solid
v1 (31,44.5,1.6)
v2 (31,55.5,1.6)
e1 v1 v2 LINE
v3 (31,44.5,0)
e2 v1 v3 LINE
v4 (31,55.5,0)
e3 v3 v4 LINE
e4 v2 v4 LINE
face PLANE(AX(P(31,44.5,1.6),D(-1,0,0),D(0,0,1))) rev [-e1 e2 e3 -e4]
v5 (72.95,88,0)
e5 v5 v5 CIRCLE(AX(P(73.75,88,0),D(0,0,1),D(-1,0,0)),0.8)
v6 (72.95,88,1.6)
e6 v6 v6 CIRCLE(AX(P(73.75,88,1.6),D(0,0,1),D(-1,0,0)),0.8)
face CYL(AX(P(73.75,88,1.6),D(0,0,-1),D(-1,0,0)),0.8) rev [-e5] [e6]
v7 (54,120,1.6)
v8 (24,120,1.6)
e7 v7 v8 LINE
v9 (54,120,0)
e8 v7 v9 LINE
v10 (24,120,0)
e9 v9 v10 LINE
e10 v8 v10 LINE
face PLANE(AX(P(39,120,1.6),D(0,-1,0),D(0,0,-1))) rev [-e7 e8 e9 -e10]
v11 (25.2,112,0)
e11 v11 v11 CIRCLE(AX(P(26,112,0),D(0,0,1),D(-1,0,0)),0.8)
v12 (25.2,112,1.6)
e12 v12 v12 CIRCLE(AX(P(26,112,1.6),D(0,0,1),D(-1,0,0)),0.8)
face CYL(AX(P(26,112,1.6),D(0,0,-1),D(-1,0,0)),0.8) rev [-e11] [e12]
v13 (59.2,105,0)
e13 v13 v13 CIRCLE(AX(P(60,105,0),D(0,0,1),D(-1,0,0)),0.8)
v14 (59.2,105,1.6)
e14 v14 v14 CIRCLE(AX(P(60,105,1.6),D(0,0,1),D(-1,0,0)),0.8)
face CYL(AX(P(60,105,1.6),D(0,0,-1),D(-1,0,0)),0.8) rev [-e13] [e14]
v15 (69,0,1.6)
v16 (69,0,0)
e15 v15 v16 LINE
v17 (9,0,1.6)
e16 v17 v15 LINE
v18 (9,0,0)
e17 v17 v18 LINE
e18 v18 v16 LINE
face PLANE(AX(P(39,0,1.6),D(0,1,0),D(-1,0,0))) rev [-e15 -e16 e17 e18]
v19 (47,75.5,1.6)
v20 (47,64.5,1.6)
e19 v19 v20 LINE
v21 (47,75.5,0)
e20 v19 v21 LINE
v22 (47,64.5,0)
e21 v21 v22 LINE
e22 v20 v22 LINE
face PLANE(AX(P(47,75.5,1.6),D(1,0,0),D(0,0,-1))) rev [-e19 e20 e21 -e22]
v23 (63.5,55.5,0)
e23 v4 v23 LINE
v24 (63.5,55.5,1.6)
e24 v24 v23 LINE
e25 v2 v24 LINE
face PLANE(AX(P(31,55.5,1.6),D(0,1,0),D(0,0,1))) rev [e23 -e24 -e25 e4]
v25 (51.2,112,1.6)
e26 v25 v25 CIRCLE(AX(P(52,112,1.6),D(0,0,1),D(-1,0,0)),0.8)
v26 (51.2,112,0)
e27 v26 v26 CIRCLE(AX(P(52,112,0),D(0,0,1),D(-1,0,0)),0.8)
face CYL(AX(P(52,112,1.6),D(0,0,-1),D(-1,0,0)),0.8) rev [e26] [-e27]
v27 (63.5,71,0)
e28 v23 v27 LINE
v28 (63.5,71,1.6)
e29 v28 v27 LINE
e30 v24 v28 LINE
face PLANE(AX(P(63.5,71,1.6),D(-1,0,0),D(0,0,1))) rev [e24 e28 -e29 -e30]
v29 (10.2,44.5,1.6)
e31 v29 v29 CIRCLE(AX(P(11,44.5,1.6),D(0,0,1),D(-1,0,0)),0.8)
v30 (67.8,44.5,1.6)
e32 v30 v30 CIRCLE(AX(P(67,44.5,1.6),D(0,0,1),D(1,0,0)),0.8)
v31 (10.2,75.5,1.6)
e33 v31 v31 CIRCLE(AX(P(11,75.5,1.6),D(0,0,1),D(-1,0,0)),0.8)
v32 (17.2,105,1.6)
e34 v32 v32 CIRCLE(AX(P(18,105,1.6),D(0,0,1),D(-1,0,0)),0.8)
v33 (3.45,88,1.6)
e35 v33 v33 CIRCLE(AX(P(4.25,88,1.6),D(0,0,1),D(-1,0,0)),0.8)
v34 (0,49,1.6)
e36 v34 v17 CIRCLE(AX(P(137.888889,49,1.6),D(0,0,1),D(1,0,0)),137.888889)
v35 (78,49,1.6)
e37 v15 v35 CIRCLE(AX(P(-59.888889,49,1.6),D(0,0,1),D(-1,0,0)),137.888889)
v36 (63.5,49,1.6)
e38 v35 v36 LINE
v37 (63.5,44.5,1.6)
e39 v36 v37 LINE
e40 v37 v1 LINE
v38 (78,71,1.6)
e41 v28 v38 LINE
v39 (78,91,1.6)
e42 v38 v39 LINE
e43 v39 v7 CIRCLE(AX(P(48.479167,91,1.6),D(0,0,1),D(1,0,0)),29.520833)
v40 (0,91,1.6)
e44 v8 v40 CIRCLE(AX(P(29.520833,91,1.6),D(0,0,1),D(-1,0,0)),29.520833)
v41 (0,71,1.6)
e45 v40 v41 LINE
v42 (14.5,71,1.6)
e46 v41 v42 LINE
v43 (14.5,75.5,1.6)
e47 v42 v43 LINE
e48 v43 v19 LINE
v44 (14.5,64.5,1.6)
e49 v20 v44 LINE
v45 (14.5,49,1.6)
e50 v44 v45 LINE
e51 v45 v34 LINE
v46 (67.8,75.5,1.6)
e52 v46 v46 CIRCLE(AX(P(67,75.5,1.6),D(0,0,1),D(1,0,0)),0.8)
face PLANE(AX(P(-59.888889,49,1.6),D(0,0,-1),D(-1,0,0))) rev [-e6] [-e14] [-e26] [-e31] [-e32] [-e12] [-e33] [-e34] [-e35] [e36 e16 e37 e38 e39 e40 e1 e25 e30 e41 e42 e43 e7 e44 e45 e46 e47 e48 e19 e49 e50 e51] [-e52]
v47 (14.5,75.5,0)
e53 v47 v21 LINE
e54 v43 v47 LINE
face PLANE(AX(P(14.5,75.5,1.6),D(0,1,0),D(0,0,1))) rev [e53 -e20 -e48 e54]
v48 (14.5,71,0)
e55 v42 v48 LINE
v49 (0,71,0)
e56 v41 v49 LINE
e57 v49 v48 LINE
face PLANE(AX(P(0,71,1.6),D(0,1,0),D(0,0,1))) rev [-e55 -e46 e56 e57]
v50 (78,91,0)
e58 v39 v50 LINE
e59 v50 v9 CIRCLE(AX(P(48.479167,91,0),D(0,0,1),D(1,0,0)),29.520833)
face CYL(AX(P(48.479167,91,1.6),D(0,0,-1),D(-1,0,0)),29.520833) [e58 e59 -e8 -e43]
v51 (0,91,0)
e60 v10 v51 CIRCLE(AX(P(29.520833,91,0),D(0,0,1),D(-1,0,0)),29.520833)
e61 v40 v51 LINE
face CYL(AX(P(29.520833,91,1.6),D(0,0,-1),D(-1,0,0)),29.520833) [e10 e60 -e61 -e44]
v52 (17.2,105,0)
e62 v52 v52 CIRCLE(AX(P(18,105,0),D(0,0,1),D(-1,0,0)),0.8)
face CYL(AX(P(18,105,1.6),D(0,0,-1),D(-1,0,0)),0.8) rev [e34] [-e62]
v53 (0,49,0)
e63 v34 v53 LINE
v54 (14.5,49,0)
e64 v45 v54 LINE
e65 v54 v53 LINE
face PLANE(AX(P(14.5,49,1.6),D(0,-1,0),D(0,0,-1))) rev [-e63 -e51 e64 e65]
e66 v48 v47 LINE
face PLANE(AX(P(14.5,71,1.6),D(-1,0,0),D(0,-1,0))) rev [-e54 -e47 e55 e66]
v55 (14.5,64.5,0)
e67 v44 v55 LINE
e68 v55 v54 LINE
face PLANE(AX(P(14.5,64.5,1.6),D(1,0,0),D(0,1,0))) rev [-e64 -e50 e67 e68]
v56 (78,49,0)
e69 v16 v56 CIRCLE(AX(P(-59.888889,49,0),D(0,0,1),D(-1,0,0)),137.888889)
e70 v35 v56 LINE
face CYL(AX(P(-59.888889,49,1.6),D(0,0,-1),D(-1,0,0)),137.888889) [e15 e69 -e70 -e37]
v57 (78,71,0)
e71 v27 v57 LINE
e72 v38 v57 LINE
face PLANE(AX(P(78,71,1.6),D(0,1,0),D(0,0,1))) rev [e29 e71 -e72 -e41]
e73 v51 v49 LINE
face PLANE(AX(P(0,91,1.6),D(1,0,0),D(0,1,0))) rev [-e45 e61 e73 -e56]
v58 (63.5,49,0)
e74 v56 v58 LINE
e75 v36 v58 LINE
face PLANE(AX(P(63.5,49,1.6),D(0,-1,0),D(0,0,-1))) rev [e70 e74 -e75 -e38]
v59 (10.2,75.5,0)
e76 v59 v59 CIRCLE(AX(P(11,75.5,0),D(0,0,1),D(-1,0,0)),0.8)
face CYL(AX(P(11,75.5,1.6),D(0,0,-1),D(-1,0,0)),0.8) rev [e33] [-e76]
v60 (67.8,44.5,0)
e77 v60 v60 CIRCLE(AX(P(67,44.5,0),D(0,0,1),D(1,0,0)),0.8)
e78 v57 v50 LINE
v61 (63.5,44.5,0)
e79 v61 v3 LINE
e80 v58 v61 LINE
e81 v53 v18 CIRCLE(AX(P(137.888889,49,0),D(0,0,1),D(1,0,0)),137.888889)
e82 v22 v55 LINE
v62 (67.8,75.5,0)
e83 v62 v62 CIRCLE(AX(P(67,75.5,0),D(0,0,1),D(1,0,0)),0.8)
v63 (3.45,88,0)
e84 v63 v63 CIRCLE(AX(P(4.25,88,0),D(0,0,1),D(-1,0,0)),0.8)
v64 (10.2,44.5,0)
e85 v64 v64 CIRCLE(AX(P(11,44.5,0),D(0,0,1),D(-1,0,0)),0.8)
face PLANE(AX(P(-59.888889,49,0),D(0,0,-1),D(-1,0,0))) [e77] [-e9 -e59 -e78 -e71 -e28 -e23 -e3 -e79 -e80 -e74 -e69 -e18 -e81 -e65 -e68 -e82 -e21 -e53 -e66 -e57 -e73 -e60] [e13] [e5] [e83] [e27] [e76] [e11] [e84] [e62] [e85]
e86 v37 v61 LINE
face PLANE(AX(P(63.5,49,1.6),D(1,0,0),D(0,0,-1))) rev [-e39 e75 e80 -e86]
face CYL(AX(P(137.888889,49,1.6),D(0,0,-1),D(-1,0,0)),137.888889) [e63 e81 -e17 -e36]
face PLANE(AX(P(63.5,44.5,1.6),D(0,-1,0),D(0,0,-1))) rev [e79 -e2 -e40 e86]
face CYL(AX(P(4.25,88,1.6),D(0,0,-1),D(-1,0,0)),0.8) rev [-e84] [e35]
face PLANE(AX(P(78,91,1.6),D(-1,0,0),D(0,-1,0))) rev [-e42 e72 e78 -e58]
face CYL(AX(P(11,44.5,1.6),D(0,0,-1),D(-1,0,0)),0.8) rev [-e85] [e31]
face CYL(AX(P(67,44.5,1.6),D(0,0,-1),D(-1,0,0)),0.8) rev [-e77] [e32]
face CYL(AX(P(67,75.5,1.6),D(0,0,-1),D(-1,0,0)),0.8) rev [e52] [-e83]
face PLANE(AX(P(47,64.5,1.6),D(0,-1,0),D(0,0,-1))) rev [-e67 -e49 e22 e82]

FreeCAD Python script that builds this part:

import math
import FreeCAD as App
import Part
import Sketcher

V = App.Vector
Q = App.Units.Quantity

doc = App.newDocument("Part")
body = doc.addObject("PartDesign::Body", "Body")

# Sketch on XY plane
sketch1 = body.newObject("Sketcher::SketchObject", "Sketch")
sketch1.AttachmentSupport = (doc.getObject("XY_Plane"), [""])
sketch1.MapMode = "FlatFace"
sketch1.addGeometry([
    Part.ArcOfCircle(Part.Circle(V(137.888889, 49, 0), V(0, 0, 1), 137.888889), math.radians(180), math.radians(200.815423)),  # 0
    Part.LineSegment(V(9, 0, 0), V(69, 0, 0)),  # 1
    Part.ArcOfCircle(Part.Circle(V(-59.888889, 49, 0), V(0, 0, 1), 137.888889), math.radians(-20.815423), math.radians(0)),  # 2
    Part.LineSegment(V(78, 49, 0), V(63.5, 49, 0)),  # 3
    Part.LineSegment(V(63.5, 49, 0), V(63.5, 44.5, 0)),  # 4
    Part.LineSegment(V(63.5, 44.5, 0), V(31, 44.5, 0)),  # 5
    Part.LineSegment(V(31, 44.5, 0), V(31, 55.5, 0)),  # 6
    Part.LineSegment(V(31, 55.5, 0), V(63.5, 55.5, 0)),  # 7
    Part.LineSegment(V(63.5, 55.5, 0), V(63.5, 71, 0)),  # 8
    Part.LineSegment(V(63.5, 71, 0), V(78, 71, 0)),  # 9
    Part.LineSegment(V(78, 71, 0), V(78, 91, 0)),  # 10
    Part.ArcOfCircle(Part.Circle(V(48.479167, 91, 0), V(0, 0, 1), 29.520833), math.radians(0), math.radians(79.221376)),  # 11
    Part.LineSegment(V(54, 120, 0), V(24, 120, 0)),  # 12
    Part.ArcOfCircle(Part.Circle(V(29.520833, 91, 0), V(0, 0, 1), 29.520833), math.radians(100.778624), math.radians(180)),  # 13
    Part.LineSegment(V(0, 91, 0), V(0, 71, 0)),  # 14
    Part.LineSegment(V(0, 71, 0), V(14.5, 71, 0)),  # 15
    Part.LineSegment(V(14.5, 71, 0), V(14.5, 75.5, 0)),  # 16
    Part.LineSegment(V(14.5, 75.5, 0), V(47, 75.5, 0)),  # 17
    Part.LineSegment(V(47, 75.5, 0), V(47, 64.5, 0)),  # 18
    Part.LineSegment(V(47, 64.5, 0), V(14.5, 64.5, 0)),  # 19
    Part.LineSegment(V(14.5, 64.5, 0), V(14.5, 49, 0)),  # 20
    Part.LineSegment(V(14.5, 49, 0), V(0, 49, 0)),  # 21
    Part.Circle(V(67, 44.5, 0), V(0, 0, 1), 0.8),  # 22
    Part.Circle(V(67, 75.5, 0), V(0, 0, 1), 0.8),  # 23
    Part.Circle(V(11, 44.5, 0), V(0, 0, 1), 0.8),  # 24
    Part.Circle(V(11, 75.5, 0), V(0, 0, 1), 0.8),  # 25
    Part.Circle(V(73.75, 88, 0), V(0, 0, 1), 0.8),  # 26
    Part.Circle(V(60, 105, 0), V(0, 0, 1), 0.8),  # 27
    Part.Circle(V(52, 112, 0), V(0, 0, 1), 0.8),  # 28
    Part.Circle(V(4.25, 88, 0), V(0, 0, 1), 0.8),  # 29
    Part.Circle(V(26, 112, 0), V(0, 0, 1), 0.8),  # 30
    Part.Circle(V(18, 105, 0), V(0, 0, 1), 0.8),  # 31
], False)
sketch1.addConstraint([
    Sketcher.Constraint("Coincident", 0, 2, 1, 1),
    Sketcher.Constraint("Coincident", 1, 2, 2, 1),
    Sketcher.Constraint("Coincident", 2, 2, 3, 1),
    Sketcher.Constraint("Coincident", 3, 2, 4, 1),
    Sketcher.Constraint("Coincident", 4, 2, 5, 1),
    Sketcher.Constraint("Coincident", 5, 2, 6, 1),
    Sketcher.Constraint("Coincident", 6, 2, 7, 1),
    Sketcher.Constraint("Coincident", 7, 2, 8, 1),
    Sketcher.Constraint("Coincident", 8, 2, 9, 1),
    Sketcher.Constraint("Coincident", 9, 2, 10, 1),
    Sketcher.Constraint("Tangent", 10, 2, 11, 1),
    Sketcher.Constraint("Coincident", 11, 2, 12, 1),
    Sketcher.Constraint("Coincident", 12, 2, 13, 1),
    Sketcher.Constraint("Tangent", 13, 2, 14, 1),
    Sketcher.Constraint("Coincident", 14, 2, 15, 1),
    Sketcher.Constraint("Coincident", 15, 2, 16, 1),
    Sketcher.Constraint("Coincident", 16, 2, 17, 1),
    Sketcher.Constraint("Coincident", 17, 2, 18, 1),
    Sketcher.Constraint("Coincident", 18, 2, 19, 1),
    Sketcher.Constraint("Coincident", 19, 2, 20, 1),
    Sketcher.Constraint("Coincident", 20, 2, 21, 1),
    Sketcher.Constraint("Coincident", 21, 2, 0, 1),
    Sketcher.Constraint("Horizontal", 1),
    Sketcher.Constraint("Horizontal", 3),
    Sketcher.Constraint("Vertical", 4),
    Sketcher.Constraint("Horizontal", 5),
    Sketcher.Constraint("Vertical", 6),
    Sketcher.Constraint("Horizontal", 7),
    Sketcher.Constraint("Vertical", 8),
    Sketcher.Constraint("Horizontal", 9),
    Sketcher.Constraint("Vertical", 10),
    Sketcher.Constraint("Horizontal", 12),
    Sketcher.Constraint("Vertical", 14),
    Sketcher.Constraint("Horizontal", 15),
    Sketcher.Constraint("Vertical", 16),
    Sketcher.Constraint("Horizontal", 17),
    Sketcher.Constraint("Vertical", 18),
    Sketcher.Constraint("Horizontal", 19),
    Sketcher.Constraint("Vertical", 20),
    Sketcher.Constraint("Horizontal", 21),
    Sketcher.Constraint("Equal", 0, 2),
    Sketcher.Constraint("Equal", 11, 13),
    Sketcher.Constraint("Equal", 22, 23),
    Sketcher.Constraint("Equal", 23, 24),
    Sketcher.Constraint("Equal", 24, 25),
    Sketcher.Constraint("Equal", 25, 26),
    Sketcher.Constraint("Equal", 26, 27),
    Sketcher.Constraint("Equal", 27, 28),
    Sketcher.Constraint("Equal", 28, 29),
    Sketcher.Constraint("Equal", 29, 30),
    Sketcher.Constraint("Equal", 30, 31),
    Sketcher.Constraint("PointOnObject", 0, 2, -1),
    Sketcher.Constraint("PointOnObject", 13, 2, -2),
    Sketcher.Constraint("PointOnObject", 21, 2, -2),
    Sketcher.Constraint("Horizontal", 0, 3, 2, 3),
    Sketcher.Constraint("Horizontal", 11, 3, 13, 3),
    Sketcher.Constraint("Horizontal", 22, 3, 24, 3),
    Sketcher.Constraint("Horizontal", 23, 3, 25, 3),
    Sketcher.Constraint("Horizontal", 26, 3, 29, 3),
    Sketcher.Constraint("Horizontal", 28, 3, 30, 3),
    Sketcher.Constraint("Horizontal", 27, 3, 31, 3),
    Sketcher.Constraint("Horizontal", 0, 3, 2, 2),
    Sketcher.Constraint("Horizontal", 24, 3, 4, 2),
    Sketcher.Constraint("Horizontal", 9, 2, 14, 2),
    Sketcher.Constraint("Horizontal", 25, 3, 16, 2),
    Sketcher.Constraint("Horizontal", 3, 2, 20, 2),
    Sketcher.Constraint("Vertical", 22, 3, 23, 3),
    Sketcher.Constraint("Vertical", 24, 3, 25, 3),
    Sketcher.Constraint("Vertical", 4, 2, 7, 2),
    Sketcher.Constraint("Vertical", 2, 2, 9, 2),
    Sketcher.Constraint("Vertical", 16, 2, 19, 2),
    Sketcher.Constraint("Equal", 9, 15),
    Sketcher.Constraint("Equal", 7, 17),
    Sketcher.Constraint("Equal", 4, 16),
    Sketcher.Constraint("Equal", 6, 18),
    Sketcher.Constraint("Diameter", 22, Q("1.6 mm")),
    Sketcher.Constraint("DistanceX", 1, 1, 1, 2, Q("60 mm")),
    Sketcher.Constraint("DistanceX", 12, 2, 12, 1, Q("30 mm")),
    Sketcher.Constraint("DistanceY", 6, 1, 6, 2, Q("11 mm")),
    Sketcher.Constraint("DistanceY", 10, 1, 10, 2, Q("20 mm")),
    Sketcher.Constraint("DistanceX", 3, 2, 3, 1, Q("14.5 mm")),
    Sketcher.Constraint("DistanceX", 5, 2, 5, 1, Q("32.5 mm")),
    Sketcher.Constraint("DistanceY", 4, 2, 4, 1, Q("4.5 mm")),
    Sketcher.Constraint("DistanceY", 8, 1, 8, 2, Q("15.5 mm")),
    Sketcher.Constraint("DistanceY", -1, 1, 0, 3, Q("49 mm")),
    Sketcher.Constraint("DistanceX", -1, 1, 22, 3, Q("67 mm")),
    Sketcher.Constraint("DistanceX", -1, 1, 24, 3, Q("11 mm")),
    Sketcher.Constraint("DistanceY", -1, 1, 26, 3, Q("88 mm")),
    Sketcher.Constraint("DistanceX", -1, 1, 27, 3, Q("60 mm")),
    Sketcher.Constraint("DistanceY", -1, 1, 27, 3, Q("105 mm")),
    Sketcher.Constraint("DistanceX", -1, 1, 28, 3, Q("52 mm")),
    Sketcher.Constraint("DistanceY", -1, 1, 28, 3, Q("112 mm")),
    Sketcher.Constraint("DistanceX", -1, 1, 30, 3, Q("26 mm")),
    Sketcher.Constraint("DistanceX", -1, 1, 31, 3, Q("18 mm")),
    Sketcher.Constraint("DistanceX", -1, 1, 1, 2, Q("69 mm")),
    Sketcher.Constraint("DistanceY", -1, 1, 11, 2, Q("120 mm")),
    Sketcher.Constraint("DistanceX", -1, 1, 26, 3, Q("73.75 mm")),
    Sketcher.Constraint("DistanceX", -1, 1, 29, 3, Q("4.25 mm")),
])
pad1 = body.newObject("PartDesign::Pad", "Pad")
pad1.Profile = sketch1
pad1.Length = 1.6

doc.recompute()
